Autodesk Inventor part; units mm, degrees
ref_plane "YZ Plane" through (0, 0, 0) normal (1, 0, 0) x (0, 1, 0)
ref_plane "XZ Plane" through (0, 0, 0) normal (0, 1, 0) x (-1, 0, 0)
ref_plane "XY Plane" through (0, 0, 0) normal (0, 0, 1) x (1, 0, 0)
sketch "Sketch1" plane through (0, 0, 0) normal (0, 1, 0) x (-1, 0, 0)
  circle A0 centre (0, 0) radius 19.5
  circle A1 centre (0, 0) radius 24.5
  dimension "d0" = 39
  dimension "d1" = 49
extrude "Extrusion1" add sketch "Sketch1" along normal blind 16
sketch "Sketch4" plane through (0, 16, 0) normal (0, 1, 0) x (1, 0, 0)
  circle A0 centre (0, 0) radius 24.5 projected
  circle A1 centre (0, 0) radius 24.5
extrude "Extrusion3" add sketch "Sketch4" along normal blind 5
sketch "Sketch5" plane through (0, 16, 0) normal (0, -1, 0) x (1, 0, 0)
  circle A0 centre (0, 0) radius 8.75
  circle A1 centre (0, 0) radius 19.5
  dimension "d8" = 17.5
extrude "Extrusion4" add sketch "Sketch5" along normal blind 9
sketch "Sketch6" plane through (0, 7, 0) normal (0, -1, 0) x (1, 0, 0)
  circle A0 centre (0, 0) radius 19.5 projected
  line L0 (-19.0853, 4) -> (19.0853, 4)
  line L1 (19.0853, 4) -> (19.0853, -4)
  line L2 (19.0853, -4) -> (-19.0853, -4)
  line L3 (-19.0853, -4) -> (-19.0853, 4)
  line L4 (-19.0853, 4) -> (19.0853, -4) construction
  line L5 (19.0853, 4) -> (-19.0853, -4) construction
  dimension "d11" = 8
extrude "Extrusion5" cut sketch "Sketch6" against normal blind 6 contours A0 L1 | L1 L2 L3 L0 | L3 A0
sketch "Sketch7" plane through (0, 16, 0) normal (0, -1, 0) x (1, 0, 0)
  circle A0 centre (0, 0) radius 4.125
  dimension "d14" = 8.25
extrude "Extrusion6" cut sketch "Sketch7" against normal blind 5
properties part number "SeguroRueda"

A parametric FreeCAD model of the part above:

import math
import FreeCAD as App
import Part
import Sketcher

doc = App.newDocument("Part")
body = doc.addObject("PartDesign::Body", "Body")

# Sketch on XZ plane
sketch1 = body.newObject("Sketcher::SketchObject", "Sketch")
sketch1.AttachmentSupport = (doc.getObject("XZ_Plane"), [""])
sketch1.MapMode = "FlatFace"
sketch1.addGeometry(Part.Circle(App.Vector(0, 0, 0), App.Vector(0, 0, 1), 24), False)
sketch1.addGeometry(Part.Circle(App.Vector(0, 0, 0), App.Vector(0, 0, 1), 20), False)
sketch1.addConstraint(Sketcher.Constraint("Coincident", 0, 3, -1, 1))
sketch1.addConstraint(Sketcher.Constraint("Coincident", 1, 3, -1, 1))
sketch1.addConstraint(Sketcher.Constraint("Diameter", 0, 49.0))
sketch1.addConstraint(Sketcher.Constraint("Diameter", 1, 39.0))
pad1 = body.newObject("PartDesign::Pad", "Pad")
pad1.Profile = sketch1
pad1.Length = 16
pad1.Reversed = True

# Sketch on XZ plane
sketch2 = body.newObject("Sketcher::SketchObject", "Sketch001")
sketch2.AttachmentSupport = (doc.getObject("XZ_Plane"), [""])
sketch2.MapMode = "FlatFace"
sketch2.AttachmentOffset = App.Placement(App.Vector(0, 0, -16), App.Rotation())
sketch2.addGeometry(Part.Circle(App.Vector(0, 0, 0), App.Vector(0, 0, 1), 24), False)
sketch2.addConstraint(Sketcher.Constraint("Coincident", 0, 3, -1, 1))
sketch2.addConstraint(Sketcher.Constraint("Diameter", 0, 49.0))
pad2 = body.newObject("PartDesign::Pad", "Pad001")
pad2.Profile = sketch2
pad2.Length = 5
pad2.Reversed = True

# Sketch on XZ plane
sketch3 = body.newObject("Sketcher::SketchObject", "Sketch002")
sketch3.AttachmentSupport = (doc.getObject("XZ_Plane"), [""])
sketch3.MapMode = "FlatFace"
sketch3.AttachmentOffset = App.Placement(App.Vector(0, 0, -16), App.Rotation())
sketch3.addGeometry(Part.Circle(App.Vector(0, 0, 0), App.Vector(0, 0, 1), 20), False)
sketch3.addGeometry(Part.Circle(App.Vector(0, 0, 0), App.Vector(0, 0, 1), 9), False)
sketch3.addConstraint(Sketcher.Constraint("Coincident", 0, 3, -1, 1))
sketch3.addConstraint(Sketcher.Constraint("Coincident", 1, 3, -1, 1))
sketch3.addConstraint(Sketcher.Constraint("Diameter", 1, 17.5))
sketch3.addConstraint(Sketcher.Constraint("Diameter", 0, 39.0))
pad3 = body.newObject("PartDesign::Pad", "Pad002")
pad3.Profile = sketch3
pad3.Length = 9

# Sketch on XZ plane
sketch4 = body.newObject("Sketcher::SketchObject", "Sketch003")
sketch4.AttachmentSupport = (doc.getObject("XZ_Plane"), [""])
sketch4.MapMode = "FlatFace"
sketch4.AttachmentOffset = App.Placement(App.Vector(0, 0, -7), App.Rotation())
sketch4.addGeometry(Part.ArcOfCircle(Part.Circle(App.Vector(0, 0, 0), App.Vector(0, 0, 1), 20), math.radians(-12), math.radians(12)), False)
sketch4.addGeometry(Part.LineSegment(App.Vector(19, 4, 0), App.Vector(-19, 4, 0)), False)
sketch4.addGeometry(Part.ArcOfCircle(Part.Circle(App.Vector(0, 0, 0), App.Vector(0, 0, 1), 20), math.radians(168), math.radians(192)), False)
sketch4.addGeometry(Part.LineSegment(App.Vector(-19, -4, 0), App.Vector(19, -4, 0)), False)
sketch4.addConstraint(Sketcher.Constraint("Coincident", 0, 2, 1, 1))
sketch4.addConstraint(Sketcher.Constraint("Coincident", 1, 2, 2, 1))
sketch4.addConstraint(Sketcher.Constraint("Coincident", 2, 2, 3, 1))
sketch4.addConstraint(Sketcher.Constraint("Coincident", 3, 2, 0, 1))
sketch4.addConstraint(Sketcher.Constraint("Horizontal", 1))
sketch4.addConstraint(Sketcher.Constraint("Horizontal", 3))
sketch4.addConstraint(Sketcher.Constraint("Coincident", 0, 3, -1, 1))
sketch4.addConstraint(Sketcher.Constraint("Coincident", 2, 3, -1, 1))
sketch4.addConstraint(Sketcher.Constraint("Equal", 0, 2))
sketch4.addConstraint(Sketcher.Constraint("Vertical", 1, 2, 2, 2))
sketch4.addConstraint(Sketcher.Constraint("DistanceY", 2, 2, 1, 2, 8.0))
sketch4.addConstraint(Sketcher.Constraint("Radius", 0, 19.5))
pocket1 = body.newObject("PartDesign::Pocket", "Pocket")
pocket1.Profile = sketch4
pocket1.Length = 6

# Sketch on XZ plane
sketch5 = body.newObject("Sketcher::SketchObject", "Sketch004")
sketch5.AttachmentSupport = (doc.getObject("XZ_Plane"), [""])
sketch5.MapMode = "FlatFace"
sketch5.AttachmentOffset = App.Placement(App.Vector(0, 0, -16), App.Rotation())
sketch5.addGeometry(Part.Circle(App.Vector(0, 0, 0), App.Vector(0, 0, 1), 4.1), False)
sketch5.addConstraint(Sketcher.Constraint("Coincident", 0, 3, -1, 1))
sketch5.addConstraint(Sketcher.Constraint("Diameter", 0, 8.25))
pocket2 = body.newObject("PartDesign::Pocket", "Pocket001")
pocket2.Profile = sketch5
pocket2.Length = 5

doc.recompute()
